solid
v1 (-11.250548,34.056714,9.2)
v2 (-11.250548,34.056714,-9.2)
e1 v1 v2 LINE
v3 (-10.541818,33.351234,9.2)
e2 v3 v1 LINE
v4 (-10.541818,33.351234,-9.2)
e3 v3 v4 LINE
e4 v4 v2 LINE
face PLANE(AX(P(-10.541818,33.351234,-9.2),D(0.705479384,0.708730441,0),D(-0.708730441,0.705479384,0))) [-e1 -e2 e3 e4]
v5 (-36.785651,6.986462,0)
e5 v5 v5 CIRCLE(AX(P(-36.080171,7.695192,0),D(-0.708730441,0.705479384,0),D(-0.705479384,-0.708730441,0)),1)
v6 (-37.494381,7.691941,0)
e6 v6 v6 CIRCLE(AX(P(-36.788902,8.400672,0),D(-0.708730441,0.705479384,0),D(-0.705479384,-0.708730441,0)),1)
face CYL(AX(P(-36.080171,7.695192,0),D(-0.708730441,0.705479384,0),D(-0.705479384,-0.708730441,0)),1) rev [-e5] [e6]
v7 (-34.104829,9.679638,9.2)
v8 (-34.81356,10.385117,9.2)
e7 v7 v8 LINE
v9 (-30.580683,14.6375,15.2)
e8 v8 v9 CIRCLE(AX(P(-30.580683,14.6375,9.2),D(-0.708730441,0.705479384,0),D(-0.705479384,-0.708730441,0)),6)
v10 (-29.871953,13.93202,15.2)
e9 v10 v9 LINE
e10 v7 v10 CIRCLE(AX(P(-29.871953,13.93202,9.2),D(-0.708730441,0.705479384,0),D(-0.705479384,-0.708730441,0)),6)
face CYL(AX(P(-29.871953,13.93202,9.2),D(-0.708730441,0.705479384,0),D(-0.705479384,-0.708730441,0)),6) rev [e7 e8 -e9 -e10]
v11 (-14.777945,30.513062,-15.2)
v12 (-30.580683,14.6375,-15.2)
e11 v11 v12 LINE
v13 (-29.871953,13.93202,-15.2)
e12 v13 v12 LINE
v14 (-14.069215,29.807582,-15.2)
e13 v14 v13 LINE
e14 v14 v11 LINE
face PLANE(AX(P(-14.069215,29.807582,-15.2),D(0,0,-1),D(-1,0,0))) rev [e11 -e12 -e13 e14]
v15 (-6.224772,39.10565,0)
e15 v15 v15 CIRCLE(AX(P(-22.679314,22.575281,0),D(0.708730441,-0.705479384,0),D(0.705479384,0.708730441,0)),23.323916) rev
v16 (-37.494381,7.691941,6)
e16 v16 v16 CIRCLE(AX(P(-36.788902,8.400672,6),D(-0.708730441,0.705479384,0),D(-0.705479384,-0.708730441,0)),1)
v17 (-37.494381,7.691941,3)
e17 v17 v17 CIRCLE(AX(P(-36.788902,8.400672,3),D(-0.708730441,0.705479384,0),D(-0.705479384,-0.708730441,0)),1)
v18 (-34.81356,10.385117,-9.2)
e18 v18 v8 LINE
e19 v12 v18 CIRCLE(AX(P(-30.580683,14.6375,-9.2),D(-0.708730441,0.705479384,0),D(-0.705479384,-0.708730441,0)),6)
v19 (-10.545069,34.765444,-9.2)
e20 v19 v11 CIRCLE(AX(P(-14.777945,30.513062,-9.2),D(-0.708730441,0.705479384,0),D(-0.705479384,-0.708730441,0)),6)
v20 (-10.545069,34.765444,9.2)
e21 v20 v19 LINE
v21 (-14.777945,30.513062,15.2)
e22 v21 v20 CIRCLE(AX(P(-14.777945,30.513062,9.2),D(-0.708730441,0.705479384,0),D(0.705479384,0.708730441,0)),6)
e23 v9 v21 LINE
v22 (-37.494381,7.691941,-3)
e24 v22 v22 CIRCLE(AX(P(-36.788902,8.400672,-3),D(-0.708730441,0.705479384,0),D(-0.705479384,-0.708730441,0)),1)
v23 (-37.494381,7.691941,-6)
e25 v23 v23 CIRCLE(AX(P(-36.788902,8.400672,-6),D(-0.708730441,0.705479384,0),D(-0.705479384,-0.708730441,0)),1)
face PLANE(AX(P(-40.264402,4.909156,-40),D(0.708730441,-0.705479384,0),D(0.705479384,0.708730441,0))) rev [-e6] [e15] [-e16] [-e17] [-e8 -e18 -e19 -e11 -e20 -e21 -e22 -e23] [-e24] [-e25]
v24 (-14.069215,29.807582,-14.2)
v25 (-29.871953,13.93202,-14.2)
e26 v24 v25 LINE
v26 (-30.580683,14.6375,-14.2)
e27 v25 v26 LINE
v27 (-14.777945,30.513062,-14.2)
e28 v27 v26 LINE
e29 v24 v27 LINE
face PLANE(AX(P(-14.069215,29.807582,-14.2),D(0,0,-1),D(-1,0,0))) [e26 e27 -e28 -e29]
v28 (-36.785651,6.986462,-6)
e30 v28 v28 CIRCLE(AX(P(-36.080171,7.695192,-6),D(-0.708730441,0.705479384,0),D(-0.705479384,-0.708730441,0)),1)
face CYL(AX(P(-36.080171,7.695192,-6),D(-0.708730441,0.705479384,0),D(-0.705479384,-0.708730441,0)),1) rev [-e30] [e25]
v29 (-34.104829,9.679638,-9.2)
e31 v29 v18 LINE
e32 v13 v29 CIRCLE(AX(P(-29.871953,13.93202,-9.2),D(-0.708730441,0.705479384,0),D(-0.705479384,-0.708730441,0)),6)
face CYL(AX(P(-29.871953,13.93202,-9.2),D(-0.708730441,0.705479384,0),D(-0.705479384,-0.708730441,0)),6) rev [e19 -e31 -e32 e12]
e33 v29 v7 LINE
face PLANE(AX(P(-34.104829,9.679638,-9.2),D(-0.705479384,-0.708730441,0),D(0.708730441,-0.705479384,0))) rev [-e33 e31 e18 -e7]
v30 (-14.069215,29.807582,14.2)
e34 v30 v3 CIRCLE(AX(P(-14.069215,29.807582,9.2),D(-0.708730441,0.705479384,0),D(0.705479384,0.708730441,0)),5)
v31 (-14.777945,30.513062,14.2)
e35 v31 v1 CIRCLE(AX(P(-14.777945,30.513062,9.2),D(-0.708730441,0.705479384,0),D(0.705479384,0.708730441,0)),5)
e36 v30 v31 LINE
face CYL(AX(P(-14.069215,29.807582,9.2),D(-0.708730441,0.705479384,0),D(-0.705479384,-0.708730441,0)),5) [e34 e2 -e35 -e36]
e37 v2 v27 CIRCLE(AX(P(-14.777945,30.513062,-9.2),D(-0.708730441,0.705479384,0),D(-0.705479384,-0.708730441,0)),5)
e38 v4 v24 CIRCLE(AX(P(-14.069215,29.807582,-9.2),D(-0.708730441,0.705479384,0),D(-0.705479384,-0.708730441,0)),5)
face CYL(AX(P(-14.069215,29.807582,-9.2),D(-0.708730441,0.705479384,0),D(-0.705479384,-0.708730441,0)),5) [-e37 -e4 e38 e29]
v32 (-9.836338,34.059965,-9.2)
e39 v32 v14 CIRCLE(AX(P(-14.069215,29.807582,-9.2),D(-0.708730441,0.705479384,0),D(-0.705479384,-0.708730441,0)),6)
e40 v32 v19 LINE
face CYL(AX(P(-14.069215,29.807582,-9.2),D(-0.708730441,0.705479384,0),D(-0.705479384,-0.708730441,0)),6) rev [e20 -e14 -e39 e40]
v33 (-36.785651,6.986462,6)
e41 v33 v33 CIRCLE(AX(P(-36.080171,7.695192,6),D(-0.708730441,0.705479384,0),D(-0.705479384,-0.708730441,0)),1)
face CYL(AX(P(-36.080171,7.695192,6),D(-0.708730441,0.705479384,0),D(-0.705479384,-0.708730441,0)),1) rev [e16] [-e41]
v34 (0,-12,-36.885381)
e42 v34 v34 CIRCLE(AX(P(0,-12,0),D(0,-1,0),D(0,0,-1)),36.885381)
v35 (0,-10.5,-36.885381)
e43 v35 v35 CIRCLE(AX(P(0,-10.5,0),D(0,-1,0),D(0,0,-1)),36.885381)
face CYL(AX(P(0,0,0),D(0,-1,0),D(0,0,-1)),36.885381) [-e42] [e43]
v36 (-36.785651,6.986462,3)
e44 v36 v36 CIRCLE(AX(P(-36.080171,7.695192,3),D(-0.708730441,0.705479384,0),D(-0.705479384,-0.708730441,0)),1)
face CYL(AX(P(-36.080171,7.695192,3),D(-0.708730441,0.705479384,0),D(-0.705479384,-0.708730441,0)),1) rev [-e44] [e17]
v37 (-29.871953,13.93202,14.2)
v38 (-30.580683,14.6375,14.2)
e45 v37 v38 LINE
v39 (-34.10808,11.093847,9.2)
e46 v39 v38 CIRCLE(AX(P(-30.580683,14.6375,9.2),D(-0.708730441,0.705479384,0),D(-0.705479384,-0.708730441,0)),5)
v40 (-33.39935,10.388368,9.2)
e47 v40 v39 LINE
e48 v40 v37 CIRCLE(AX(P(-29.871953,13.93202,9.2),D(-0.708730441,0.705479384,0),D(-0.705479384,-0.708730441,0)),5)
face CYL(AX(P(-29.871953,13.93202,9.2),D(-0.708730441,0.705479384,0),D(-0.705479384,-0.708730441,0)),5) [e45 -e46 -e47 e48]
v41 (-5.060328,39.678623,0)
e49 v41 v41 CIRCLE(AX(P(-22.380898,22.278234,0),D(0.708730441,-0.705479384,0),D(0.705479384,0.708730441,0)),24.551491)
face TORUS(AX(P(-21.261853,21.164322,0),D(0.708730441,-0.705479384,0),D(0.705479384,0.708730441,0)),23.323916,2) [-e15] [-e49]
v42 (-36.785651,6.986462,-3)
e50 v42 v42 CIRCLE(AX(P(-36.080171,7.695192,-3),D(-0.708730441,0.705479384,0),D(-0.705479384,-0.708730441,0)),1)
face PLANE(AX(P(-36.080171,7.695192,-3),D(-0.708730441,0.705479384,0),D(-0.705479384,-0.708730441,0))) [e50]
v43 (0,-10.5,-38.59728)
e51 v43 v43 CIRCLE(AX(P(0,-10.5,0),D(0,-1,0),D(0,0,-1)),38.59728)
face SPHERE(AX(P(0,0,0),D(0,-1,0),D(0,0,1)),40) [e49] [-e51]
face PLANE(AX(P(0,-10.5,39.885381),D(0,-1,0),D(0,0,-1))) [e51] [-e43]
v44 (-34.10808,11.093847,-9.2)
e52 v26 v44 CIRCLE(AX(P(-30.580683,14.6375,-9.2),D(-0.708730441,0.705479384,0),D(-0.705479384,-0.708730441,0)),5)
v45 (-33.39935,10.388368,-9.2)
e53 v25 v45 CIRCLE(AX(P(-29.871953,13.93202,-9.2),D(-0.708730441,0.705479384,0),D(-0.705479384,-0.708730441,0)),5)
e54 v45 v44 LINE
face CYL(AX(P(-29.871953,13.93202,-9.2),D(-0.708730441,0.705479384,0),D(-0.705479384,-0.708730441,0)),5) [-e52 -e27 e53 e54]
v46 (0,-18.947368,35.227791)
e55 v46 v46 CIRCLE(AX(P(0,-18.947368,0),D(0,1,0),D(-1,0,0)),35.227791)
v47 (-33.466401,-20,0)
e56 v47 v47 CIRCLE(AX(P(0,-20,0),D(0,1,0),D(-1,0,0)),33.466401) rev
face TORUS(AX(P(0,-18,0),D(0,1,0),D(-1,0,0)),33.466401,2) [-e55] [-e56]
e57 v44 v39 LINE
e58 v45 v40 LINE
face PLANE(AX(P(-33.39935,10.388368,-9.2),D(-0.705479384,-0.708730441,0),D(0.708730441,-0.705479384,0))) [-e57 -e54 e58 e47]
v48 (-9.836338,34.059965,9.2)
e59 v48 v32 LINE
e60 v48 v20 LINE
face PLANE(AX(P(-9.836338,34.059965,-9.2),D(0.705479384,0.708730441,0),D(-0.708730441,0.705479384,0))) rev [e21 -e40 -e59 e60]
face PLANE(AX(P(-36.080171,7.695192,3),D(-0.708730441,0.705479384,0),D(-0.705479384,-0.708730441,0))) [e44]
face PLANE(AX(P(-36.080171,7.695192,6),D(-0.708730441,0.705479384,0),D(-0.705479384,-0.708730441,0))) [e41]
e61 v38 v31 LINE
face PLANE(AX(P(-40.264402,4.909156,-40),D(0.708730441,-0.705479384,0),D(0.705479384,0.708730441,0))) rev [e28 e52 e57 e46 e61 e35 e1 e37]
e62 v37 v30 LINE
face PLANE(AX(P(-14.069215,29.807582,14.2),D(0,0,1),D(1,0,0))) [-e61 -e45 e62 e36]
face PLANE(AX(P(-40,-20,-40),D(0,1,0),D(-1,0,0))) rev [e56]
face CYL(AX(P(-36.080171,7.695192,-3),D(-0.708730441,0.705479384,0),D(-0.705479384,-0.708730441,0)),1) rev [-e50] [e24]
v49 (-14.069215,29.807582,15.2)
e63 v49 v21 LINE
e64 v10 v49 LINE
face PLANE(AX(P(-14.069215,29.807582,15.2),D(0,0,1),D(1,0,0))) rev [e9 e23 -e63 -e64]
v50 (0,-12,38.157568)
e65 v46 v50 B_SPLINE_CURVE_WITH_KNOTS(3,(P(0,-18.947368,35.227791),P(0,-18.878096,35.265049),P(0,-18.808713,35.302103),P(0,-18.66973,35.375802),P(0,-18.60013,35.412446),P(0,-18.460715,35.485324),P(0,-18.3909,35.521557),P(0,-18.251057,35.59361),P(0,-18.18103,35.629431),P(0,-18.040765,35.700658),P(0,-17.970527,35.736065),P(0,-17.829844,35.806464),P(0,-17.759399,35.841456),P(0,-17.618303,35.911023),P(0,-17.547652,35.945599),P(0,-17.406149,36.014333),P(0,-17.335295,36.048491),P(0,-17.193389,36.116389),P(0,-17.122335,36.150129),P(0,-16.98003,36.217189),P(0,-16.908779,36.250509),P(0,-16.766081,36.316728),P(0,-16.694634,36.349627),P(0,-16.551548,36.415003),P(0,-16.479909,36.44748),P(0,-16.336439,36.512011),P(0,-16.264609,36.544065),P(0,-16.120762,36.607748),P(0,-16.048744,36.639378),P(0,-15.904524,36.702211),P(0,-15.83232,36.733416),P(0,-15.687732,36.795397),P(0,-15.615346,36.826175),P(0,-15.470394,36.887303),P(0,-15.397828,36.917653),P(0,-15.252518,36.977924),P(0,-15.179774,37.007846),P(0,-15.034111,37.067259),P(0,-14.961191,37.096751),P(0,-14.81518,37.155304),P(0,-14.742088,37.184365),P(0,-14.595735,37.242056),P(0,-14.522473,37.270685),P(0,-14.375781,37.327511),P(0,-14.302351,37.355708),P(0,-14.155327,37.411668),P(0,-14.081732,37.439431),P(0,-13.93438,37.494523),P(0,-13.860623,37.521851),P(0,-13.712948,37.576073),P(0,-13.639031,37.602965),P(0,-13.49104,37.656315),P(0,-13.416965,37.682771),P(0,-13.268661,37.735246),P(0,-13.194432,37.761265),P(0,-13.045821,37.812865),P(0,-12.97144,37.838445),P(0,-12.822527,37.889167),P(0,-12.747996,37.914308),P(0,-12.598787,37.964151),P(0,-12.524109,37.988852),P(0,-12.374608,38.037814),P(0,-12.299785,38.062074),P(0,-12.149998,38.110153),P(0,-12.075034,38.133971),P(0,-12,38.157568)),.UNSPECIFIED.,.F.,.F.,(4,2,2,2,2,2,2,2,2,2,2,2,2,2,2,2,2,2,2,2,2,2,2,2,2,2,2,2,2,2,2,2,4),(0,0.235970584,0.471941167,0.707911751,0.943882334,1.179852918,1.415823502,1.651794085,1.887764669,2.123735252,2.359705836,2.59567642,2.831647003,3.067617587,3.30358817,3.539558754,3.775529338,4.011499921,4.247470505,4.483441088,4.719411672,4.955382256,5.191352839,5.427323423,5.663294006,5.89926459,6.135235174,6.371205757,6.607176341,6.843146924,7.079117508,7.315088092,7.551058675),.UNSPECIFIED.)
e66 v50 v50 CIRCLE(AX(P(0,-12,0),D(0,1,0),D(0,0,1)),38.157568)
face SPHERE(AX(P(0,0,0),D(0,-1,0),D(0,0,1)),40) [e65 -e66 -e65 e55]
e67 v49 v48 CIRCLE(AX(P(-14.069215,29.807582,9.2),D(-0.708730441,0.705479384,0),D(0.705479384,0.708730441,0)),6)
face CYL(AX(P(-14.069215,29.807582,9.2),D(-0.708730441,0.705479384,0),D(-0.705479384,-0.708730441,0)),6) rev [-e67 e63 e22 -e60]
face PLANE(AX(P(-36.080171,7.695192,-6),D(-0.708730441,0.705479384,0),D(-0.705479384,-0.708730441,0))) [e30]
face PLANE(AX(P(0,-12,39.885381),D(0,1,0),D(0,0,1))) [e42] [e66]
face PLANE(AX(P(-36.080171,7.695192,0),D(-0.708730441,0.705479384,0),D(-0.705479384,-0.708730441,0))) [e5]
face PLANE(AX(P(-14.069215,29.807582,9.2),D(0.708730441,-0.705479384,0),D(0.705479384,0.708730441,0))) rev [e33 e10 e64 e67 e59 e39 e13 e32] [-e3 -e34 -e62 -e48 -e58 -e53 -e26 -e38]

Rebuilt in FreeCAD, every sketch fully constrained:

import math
import FreeCAD as App
import Part
import Sketcher
Q = App.Units.Quantity


def edges_at(feature, points):
    """Names of the edges that pass closest to the given points."""
    edges = feature.Shape.Edges
    near = lambda p: min(range(len(edges)), key=lambda i: edges[i].distToShape(Part.Vertex(*p))[0])
    return sorted({f"Edge{near(p) + 1}" for p in points})

doc = App.newDocument("Part")
params = doc.addObject("Spreadsheet::Sheet", "Params")
for row, (alias, value) in enumerate([
    ("sketch1_radius", "40 mm"),
    ("revolution_angle", "360 deg"),
    ("sketch2_width", "80 mm"),
    ("sketch2_height", "50 mm"),
    ("sketch3_length", "50 mm"),
    ("sketch4_radius", "6 mm"),
    ("sketch4_radius2", "5 mm"),
    ("sketch4_width", "18.4 mm"),
    ("sketch4_height", "22.4 mm"),
    ("pocket3_length", "1 mm"),
    ("sketch5_diameter", "2 mm"),
    ("pocket4_length", "1 mm"),
    ("fillet_radius", "2 mm"),
    ("sketch6_height", "3 mm"),
    ("sketch6_width", "1.5 mm"),
    ("groove_angle", "360 deg"),
    ("fillet2_radius", "2 mm"),
], start=1):
    params.set(f"A{row}", alias)
    params.set(f"B{row}", "=" + value)
    params.setAlias(f"B{row}", alias)

body = doc.addObject("PartDesign::Body", "Body")

# Sketch on YZ plane
sketch1 = body.newObject("Sketcher::SketchObject", "Sketch")
sketch1.AttachmentSupport = (doc.getObject("YZ_Plane"), [""])
sketch1.MapMode = "FlatFace"
sketch1.addGeometry([
    Part.LineSegment(App.Vector(-40, 0, 0), App.Vector(40, 0, 0)),
    Part.ArcOfCircle(Part.Circle(App.Vector(0, 0, 0), App.Vector(0, 0, 1), 40), math.radians(0), math.radians(180)),
], False)
sketch1.addConstraint([
    Sketcher.Constraint("Coincident", 0, 1, 1, 2),
    Sketcher.Constraint("Coincident", 1, 1, 0, 2),
    Sketcher.Constraint("Horizontal", 0),
    Sketcher.Constraint("Coincident", 1, 3, -1, 1),
    Sketcher.Constraint("PointOnObject", 0, 1, -1),
    Sketcher.Constraint("Radius", 1, Q("40 mm")),
])
sketch1.setExpression("Constraints[5]", "Params.sketch1_radius")
revolution = body.newObject("PartDesign::Revolution", "Revolution")
revolution.Profile = sketch1
revolution.ReferenceAxis = (sketch1, ["H_Axis"])
revolution.setExpression("Angle", "Params.revolution_angle")

# Sketch on XY plane
sketch2 = body.newObject("Sketcher::SketchObject", "Sketch001")
sketch2.AttachmentSupport = (doc.getObject("XY_Plane"), [""])
sketch2.MapMode = "FlatFace"
sketch2.addGeometry([
    Part.LineSegment(App.Vector(-40, -20, 0), App.Vector(-40, -70, 0)),
    Part.LineSegment(App.Vector(-40, -70, 0), App.Vector(40, -70, 0)),
    Part.LineSegment(App.Vector(40, -70, 0), App.Vector(40, -20, 0)),
    Part.LineSegment(App.Vector(40, -20, 0), App.Vector(-40, -20, 0)),
], False)
sketch2.addConstraint([
    Sketcher.Constraint("Coincident", 0, 2, 1, 1),
    Sketcher.Constraint("Coincident", 1, 2, 2, 1),
    Sketcher.Constraint("Coincident", 2, 2, 3, 1),
    Sketcher.Constraint("Coincident", 3, 2, 0, 1),
    Sketcher.Constraint("Vertical", 0),
    Sketcher.Constraint("Horizontal", 1),
    Sketcher.Constraint("Vertical", 2),
    Sketcher.Constraint("Horizontal", 3),
    Sketcher.Constraint("DistanceX", 1, 1, 1, 2, Q("80 mm")),
    Sketcher.Constraint("DistanceY", 0, 2, 0, 1, Q("50 mm")),
    Sketcher.Constraint("DistanceX", 0, 2, -1, 1, Q("40 mm")),
    Sketcher.Constraint("DistanceY", 0, 2, -1, 1, Q("70 mm")),
])
sketch2.setExpression("Constraints[8]", "Params.sketch2_width")
sketch2.setExpression("Constraints[9]", "Params.sketch2_height")
pocket1 = body.newObject("PartDesign::Pocket", "Pocket")
pocket1.Profile = sketch2
pocket1.Type = "ThroughAll"
pocket1.Midplane = True

# Sketch on XY plane
sketch3 = body.newObject("Sketcher::SketchObject", "Sketch002")
sketch3.AttachmentSupport = (doc.getObject("XY_Plane"), [""])
sketch3.MapMode = "FlatFace"
sketch3.addGeometry([
    Part.LineSegment(App.Vector(-40, 5, 0), App.Vector(-5, 40, 0)),
    Part.LineSegment(App.Vector(-5, 40, 0), App.Vector(-21, 54, 0)),
    Part.LineSegment(App.Vector(-21, 54, 0), App.Vector(-80, 5, 0)),
    Part.LineSegment(App.Vector(-80, 5, 0), App.Vector(-40, 5, 0)),
], False)
sketch3.addConstraint([
    Sketcher.Constraint("Coincident", 0, 2, 1, 1),
    Sketcher.Constraint("Coincident", 1, 2, 2, 1),
    Sketcher.Constraint("Coincident", 2, 2, 3, 1),
    Sketcher.Constraint("Coincident", 3, 2, 0, 1),
    Sketcher.Constraint("Horizontal", 3),
    Sketcher.Constraint("Distance", 0, Q("50 mm")),
    Sketcher.Constraint("DistanceX", 3, 1, 3, 2, Q("39.952609 mm")),
    Sketcher.Constraint("DistanceX", 3, 2, -1, 1, Q("40.264402 mm")),
    Sketcher.Constraint("DistanceY", -1, 1, 0, 2, Q("40.345678 mm")),
    Sketcher.Constraint("DistanceX", 1, 2, -1, 1, Q("21.331481 mm")),
    Sketcher.Constraint("DistanceX", 1, 2, 0, 2, Q("16.341049 mm")),
    Sketcher.Constraint("DistanceY", 2, 2, 1, 2, Q("49.160908 mm")),
])
sketch3.setExpression("Constraints[5]", "Params.sketch3_length")
pocket2 = body.newObject("PartDesign::Pocket", "Pocket001")
pocket2.Profile = sketch3
pocket2.Type = "ThroughAll"
pocket2.Midplane = True

# Sketch on an angled plane
sketch4 = body.newObject("Sketcher::SketchObject", "Sketch003")
sketch4.Placement = App.Placement(App.Vector(-22.679314, 22.575281, 0), App.Rotation(App.Vector(0, 0, 1), App.Vector(0.705479384, 0.708730441, 0), App.Vector(-0.708730441, 0.705479384, 0), "ZXY"))
sketch4.addGeometry([
    Part.LineSegment(App.Vector(15, -11, 0), App.Vector(15, 11, 0)),  # 0
    Part.ArcOfCircle(Part.Circle(App.Vector(9, 11, 0), App.Vector(0, 0, 1), 6), math.radians(0), math.radians(90)),  # 1
    Part.LineSegment(App.Vector(9, 17, 0), App.Vector(-9, 17, 0)),  # 2
    Part.ArcOfCircle(Part.Circle(App.Vector(-9, 11, 0), App.Vector(0, 0, 1), 6), math.radians(90), math.radians(180)),  # 3
    Part.LineSegment(App.Vector(-15, 11, 0), App.Vector(-15, -11, 0)),  # 4
    Part.ArcOfCircle(Part.Circle(App.Vector(-9, -11, 0), App.Vector(0, 0, 1), 6), math.radians(180), math.radians(270)),  # 5
    Part.LineSegment(App.Vector(-9, -17, 0), App.Vector(9, -17, 0)),  # 6
    Part.ArcOfCircle(Part.Circle(App.Vector(9, -11, 0), App.Vector(0, 0, 1), 6), math.radians(-90), math.radians(0)),  # 7
    Part.LineSegment(App.Vector(-9, 16, 0), App.Vector(9, 16, 0)),  # 8
    Part.ArcOfCircle(Part.Circle(App.Vector(9, 11, 0), App.Vector(0, 0, 1), 5), math.radians(0), math.radians(90)),  # 9
    Part.LineSegment(App.Vector(14, 11, 0), App.Vector(14, -11, 0)),  # 10
    Part.ArcOfCircle(Part.Circle(App.Vector(9, -11, 0), App.Vector(0, 0, 1), 5), math.radians(-90), math.radians(0)),  # 11
    Part.LineSegment(App.Vector(9, -16, 0), App.Vector(-9, -16, 0)),  # 12
    Part.ArcOfCircle(Part.Circle(App.Vector(-9, -11, 0), App.Vector(0, 0, 1), 5), math.radians(180), math.radians(270)),  # 13
    Part.LineSegment(App.Vector(-14, -11, 0), App.Vector(-14, 11, 0)),  # 14
    Part.ArcOfCircle(Part.Circle(App.Vector(-9, 11, 0), App.Vector(0, 0, 1), 5), math.radians(90), math.radians(180)),  # 15
], False)
sketch4.addConstraint([
    Sketcher.Constraint("Tangent", 0, 2, 1, 1),
    Sketcher.Constraint("Tangent", 1, 2, 2, 1),
    Sketcher.Constraint("Tangent", 2, 2, 3, 1),
    Sketcher.Constraint("Tangent", 3, 2, 4, 1),
    Sketcher.Constraint("Tangent", 4, 2, 5, 1),
    Sketcher.Constraint("Tangent", 5, 2, 6, 1),
    Sketcher.Constraint("Tangent", 6, 2, 7, 1),
    Sketcher.Constraint("Tangent", 7, 2, 0, 1),
    Sketcher.Constraint("Tangent", 8, 2, 9, 2),
    Sketcher.Constraint("Tangent", 9, 1, 10, 1),
    Sketcher.Constraint("Tangent", 10, 2, 11, 2),
    Sketcher.Constraint("Tangent", 11, 1, 12, 1),
    Sketcher.Constraint("Tangent", 12, 2, 13, 2),
    Sketcher.Constraint("Tangent", 13, 1, 14, 1),
    Sketcher.Constraint("Tangent", 14, 2, 15, 2),
    Sketcher.Constraint("Tangent", 15, 1, 8, 1),
    Sketcher.Constraint("Vertical", 0),
    Sketcher.Constraint("Horizontal", 2),
    Sketcher.Constraint("Vertical", 4),
    Sketcher.Constraint("Horizontal", 6),
    Sketcher.Constraint("Horizontal", 8),
    Sketcher.Constraint("Vertical", 10),
    Sketcher.Constraint("Horizontal", 12),
    Sketcher.Constraint("Vertical", 14),
    Sketcher.Constraint("Coincident", 9, 3, 1, 3),
    Sketcher.Constraint("Coincident", 11, 3, 7, 3),
    Sketcher.Constraint("Coincident", 13, 3, 5, 3),
    Sketcher.Constraint("Equal", 1, 3),
    Sketcher.Constraint("Equal", 3, 5),
    Sketcher.Constraint("Equal", 5, 7),
    Sketcher.Constraint("Equal", 13, 15),
    Sketcher.Constraint("Symmetric", 1, 3, 5, 3, -1, 1),
    Sketcher.Constraint("Radius", 1, Q("6 mm")),
    Sketcher.Constraint("Radius", 9, Q("5 mm")),
    Sketcher.Constraint("DistanceX", 2, 2, 2, 1, Q("18.4 mm")),
    Sketcher.Constraint("DistanceY", 0, 1, 0, 2, Q("22.4 mm")),
])
sketch4.setExpression("Constraints[32]", "Params.sketch4_radius")
sketch4.setExpression("Constraints[33]", "Params.sketch4_radius2")
sketch4.setExpression("Constraints[34]", "Params.sketch4_width")
sketch4.setExpression("Constraints[35]", "Params.sketch4_height")
pocket3 = body.newObject("PartDesign::Pocket", "Pocket002")
pocket3.Profile = sketch4
pocket3.setExpression("Length", "Params.pocket3_length")

# Sketch on an angled plane
sketch5 = body.newObject("Sketcher::SketchObject", "Sketch004")
sketch5.Placement = App.Placement(App.Vector(-22.679314, 22.575281, 0), App.Rotation(App.Vector(0, 0, 1), App.Vector(0.705479384, 0.708730441, 0), App.Vector(-0.708730441, 0.705479384, 0), "ZXY"))
sketch5.addGeometry([
    Part.Circle(App.Vector(0, -20, 0), App.Vector(0, 0, 1), 1),  # 0
    Part.Circle(App.Vector(3, -20, 0), App.Vector(0, 0, 1), 1),  # 1
    Part.Circle(App.Vector(6, -20, 0), App.Vector(0, 0, 1), 1),  # 2
    Part.Circle(App.Vector(-3, -20, 0), App.Vector(0, 0, 1), 1),  # 3
    Part.Circle(App.Vector(-6, -20, 0), App.Vector(0, 0, 1), 1),  # 4
], False)
sketch5.addConstraint([
    Sketcher.Constraint("Equal", 0, 1),
    Sketcher.Constraint("Equal", 1, 2),
    Sketcher.Constraint("Equal", 2, 3),
    Sketcher.Constraint("Equal", 3, 4),
    Sketcher.Constraint("Symmetric", 1, 3, 3, 3, -2),
    Sketcher.Constraint("Symmetric", 2, 3, 4, 3, -2),
    Sketcher.Constraint("PointOnObject", 0, 3, -2),
    Sketcher.Constraint("Horizontal", 0, 3, 1, 3),
    Sketcher.Constraint("Horizontal", 1, 3, 2, 3),
    Sketcher.Constraint("Diameter", 0, Q("2 mm")),
    Sketcher.Constraint("DistanceY", 0, 3, -1, 1, Q("20 mm")),
    Sketcher.Constraint("DistanceX", -1, 1, 1, 3, Q("3 mm")),
    Sketcher.Constraint("DistanceX", -1, 1, 2, 3, Q("6 mm")),
])
sketch5.setExpression("Constraints[9]", "Params.sketch5_diameter")
pocket4 = body.newObject("PartDesign::Pocket", "Pocket003")
pocket4.Profile = sketch5
pocket4.setExpression("Length", "Params.pocket4_length")
doc.recompute()

fillet = body.newObject("PartDesign::Fillet", "Fillet")
fillet.Base = (pocket4, edges_at(pocket4, [(-5.748, 39.585, 0)]))
fillet.setExpression("Radius", "Params.fillet_radius")

# Sketch on YZ plane
sketch6 = body.newObject("Sketcher::SketchObject", "Sketch005")
sketch6.AttachmentSupport = (doc.getObject("YZ_Plane"), [""])
sketch6.MapMode = "FlatFace"
sketch6.addGeometry([
    Part.LineSegment(App.Vector(-10.5, 39.9, 0), App.Vector(-12, 39.9, 0)),
    Part.LineSegment(App.Vector(-12, 39.9, 0), App.Vector(-12, 36.9, 0)),
    Part.LineSegment(App.Vector(-12, 36.9, 0), App.Vector(-10.5, 36.9, 0)),
    Part.LineSegment(App.Vector(-10.5, 36.9, 0), App.Vector(-10.5, 39.9, 0)),
], False)
sketch6.addConstraint([
    Sketcher.Constraint("Coincident", 0, 2, 1, 1),
    Sketcher.Constraint("Coincident", 1, 2, 2, 1),
    Sketcher.Constraint("Coincident", 2, 2, 3, 1),
    Sketcher.Constraint("Coincident", 3, 2, 0, 1),
    Sketcher.Constraint("Horizontal", 0),
    Sketcher.Constraint("Vertical", 1),
    Sketcher.Constraint("Horizontal", 2),
    Sketcher.Constraint("Vertical", 3),
    Sketcher.Constraint("DistanceY", 1, 2, 1, 1, Q("3 mm")),
    Sketcher.Constraint("DistanceX", 0, 2, 0, 1, Q("1.5 mm")),
    Sketcher.Constraint("DistanceX", 0, 2, -1, 1, Q("12 mm")),
    Sketcher.Constraint("DistanceY", -1, 1, 0, 2, Q("39.885381 mm")),
])
sketch6.setExpression("Constraints[8]", "Params.sketch6_height")
sketch6.setExpression("Constraints[9]", "Params.sketch6_width")
groove = body.newObject("PartDesign::Groove", "Groove")
groove.Profile = sketch6
groove.ReferenceAxis = (sketch6, ["H_Axis"])
groove.setExpression("Angle", "Params.groove_angle")
doc.recompute()

fillet2 = body.newObject("PartDesign::Fillet", "Fillet001")
fillet2.Base = (groove, edges_at(groove, [(0, -20, -34.641)]))
fillet2.setExpression("Radius", "Params.fillet2_radius")

doc.recompute()
